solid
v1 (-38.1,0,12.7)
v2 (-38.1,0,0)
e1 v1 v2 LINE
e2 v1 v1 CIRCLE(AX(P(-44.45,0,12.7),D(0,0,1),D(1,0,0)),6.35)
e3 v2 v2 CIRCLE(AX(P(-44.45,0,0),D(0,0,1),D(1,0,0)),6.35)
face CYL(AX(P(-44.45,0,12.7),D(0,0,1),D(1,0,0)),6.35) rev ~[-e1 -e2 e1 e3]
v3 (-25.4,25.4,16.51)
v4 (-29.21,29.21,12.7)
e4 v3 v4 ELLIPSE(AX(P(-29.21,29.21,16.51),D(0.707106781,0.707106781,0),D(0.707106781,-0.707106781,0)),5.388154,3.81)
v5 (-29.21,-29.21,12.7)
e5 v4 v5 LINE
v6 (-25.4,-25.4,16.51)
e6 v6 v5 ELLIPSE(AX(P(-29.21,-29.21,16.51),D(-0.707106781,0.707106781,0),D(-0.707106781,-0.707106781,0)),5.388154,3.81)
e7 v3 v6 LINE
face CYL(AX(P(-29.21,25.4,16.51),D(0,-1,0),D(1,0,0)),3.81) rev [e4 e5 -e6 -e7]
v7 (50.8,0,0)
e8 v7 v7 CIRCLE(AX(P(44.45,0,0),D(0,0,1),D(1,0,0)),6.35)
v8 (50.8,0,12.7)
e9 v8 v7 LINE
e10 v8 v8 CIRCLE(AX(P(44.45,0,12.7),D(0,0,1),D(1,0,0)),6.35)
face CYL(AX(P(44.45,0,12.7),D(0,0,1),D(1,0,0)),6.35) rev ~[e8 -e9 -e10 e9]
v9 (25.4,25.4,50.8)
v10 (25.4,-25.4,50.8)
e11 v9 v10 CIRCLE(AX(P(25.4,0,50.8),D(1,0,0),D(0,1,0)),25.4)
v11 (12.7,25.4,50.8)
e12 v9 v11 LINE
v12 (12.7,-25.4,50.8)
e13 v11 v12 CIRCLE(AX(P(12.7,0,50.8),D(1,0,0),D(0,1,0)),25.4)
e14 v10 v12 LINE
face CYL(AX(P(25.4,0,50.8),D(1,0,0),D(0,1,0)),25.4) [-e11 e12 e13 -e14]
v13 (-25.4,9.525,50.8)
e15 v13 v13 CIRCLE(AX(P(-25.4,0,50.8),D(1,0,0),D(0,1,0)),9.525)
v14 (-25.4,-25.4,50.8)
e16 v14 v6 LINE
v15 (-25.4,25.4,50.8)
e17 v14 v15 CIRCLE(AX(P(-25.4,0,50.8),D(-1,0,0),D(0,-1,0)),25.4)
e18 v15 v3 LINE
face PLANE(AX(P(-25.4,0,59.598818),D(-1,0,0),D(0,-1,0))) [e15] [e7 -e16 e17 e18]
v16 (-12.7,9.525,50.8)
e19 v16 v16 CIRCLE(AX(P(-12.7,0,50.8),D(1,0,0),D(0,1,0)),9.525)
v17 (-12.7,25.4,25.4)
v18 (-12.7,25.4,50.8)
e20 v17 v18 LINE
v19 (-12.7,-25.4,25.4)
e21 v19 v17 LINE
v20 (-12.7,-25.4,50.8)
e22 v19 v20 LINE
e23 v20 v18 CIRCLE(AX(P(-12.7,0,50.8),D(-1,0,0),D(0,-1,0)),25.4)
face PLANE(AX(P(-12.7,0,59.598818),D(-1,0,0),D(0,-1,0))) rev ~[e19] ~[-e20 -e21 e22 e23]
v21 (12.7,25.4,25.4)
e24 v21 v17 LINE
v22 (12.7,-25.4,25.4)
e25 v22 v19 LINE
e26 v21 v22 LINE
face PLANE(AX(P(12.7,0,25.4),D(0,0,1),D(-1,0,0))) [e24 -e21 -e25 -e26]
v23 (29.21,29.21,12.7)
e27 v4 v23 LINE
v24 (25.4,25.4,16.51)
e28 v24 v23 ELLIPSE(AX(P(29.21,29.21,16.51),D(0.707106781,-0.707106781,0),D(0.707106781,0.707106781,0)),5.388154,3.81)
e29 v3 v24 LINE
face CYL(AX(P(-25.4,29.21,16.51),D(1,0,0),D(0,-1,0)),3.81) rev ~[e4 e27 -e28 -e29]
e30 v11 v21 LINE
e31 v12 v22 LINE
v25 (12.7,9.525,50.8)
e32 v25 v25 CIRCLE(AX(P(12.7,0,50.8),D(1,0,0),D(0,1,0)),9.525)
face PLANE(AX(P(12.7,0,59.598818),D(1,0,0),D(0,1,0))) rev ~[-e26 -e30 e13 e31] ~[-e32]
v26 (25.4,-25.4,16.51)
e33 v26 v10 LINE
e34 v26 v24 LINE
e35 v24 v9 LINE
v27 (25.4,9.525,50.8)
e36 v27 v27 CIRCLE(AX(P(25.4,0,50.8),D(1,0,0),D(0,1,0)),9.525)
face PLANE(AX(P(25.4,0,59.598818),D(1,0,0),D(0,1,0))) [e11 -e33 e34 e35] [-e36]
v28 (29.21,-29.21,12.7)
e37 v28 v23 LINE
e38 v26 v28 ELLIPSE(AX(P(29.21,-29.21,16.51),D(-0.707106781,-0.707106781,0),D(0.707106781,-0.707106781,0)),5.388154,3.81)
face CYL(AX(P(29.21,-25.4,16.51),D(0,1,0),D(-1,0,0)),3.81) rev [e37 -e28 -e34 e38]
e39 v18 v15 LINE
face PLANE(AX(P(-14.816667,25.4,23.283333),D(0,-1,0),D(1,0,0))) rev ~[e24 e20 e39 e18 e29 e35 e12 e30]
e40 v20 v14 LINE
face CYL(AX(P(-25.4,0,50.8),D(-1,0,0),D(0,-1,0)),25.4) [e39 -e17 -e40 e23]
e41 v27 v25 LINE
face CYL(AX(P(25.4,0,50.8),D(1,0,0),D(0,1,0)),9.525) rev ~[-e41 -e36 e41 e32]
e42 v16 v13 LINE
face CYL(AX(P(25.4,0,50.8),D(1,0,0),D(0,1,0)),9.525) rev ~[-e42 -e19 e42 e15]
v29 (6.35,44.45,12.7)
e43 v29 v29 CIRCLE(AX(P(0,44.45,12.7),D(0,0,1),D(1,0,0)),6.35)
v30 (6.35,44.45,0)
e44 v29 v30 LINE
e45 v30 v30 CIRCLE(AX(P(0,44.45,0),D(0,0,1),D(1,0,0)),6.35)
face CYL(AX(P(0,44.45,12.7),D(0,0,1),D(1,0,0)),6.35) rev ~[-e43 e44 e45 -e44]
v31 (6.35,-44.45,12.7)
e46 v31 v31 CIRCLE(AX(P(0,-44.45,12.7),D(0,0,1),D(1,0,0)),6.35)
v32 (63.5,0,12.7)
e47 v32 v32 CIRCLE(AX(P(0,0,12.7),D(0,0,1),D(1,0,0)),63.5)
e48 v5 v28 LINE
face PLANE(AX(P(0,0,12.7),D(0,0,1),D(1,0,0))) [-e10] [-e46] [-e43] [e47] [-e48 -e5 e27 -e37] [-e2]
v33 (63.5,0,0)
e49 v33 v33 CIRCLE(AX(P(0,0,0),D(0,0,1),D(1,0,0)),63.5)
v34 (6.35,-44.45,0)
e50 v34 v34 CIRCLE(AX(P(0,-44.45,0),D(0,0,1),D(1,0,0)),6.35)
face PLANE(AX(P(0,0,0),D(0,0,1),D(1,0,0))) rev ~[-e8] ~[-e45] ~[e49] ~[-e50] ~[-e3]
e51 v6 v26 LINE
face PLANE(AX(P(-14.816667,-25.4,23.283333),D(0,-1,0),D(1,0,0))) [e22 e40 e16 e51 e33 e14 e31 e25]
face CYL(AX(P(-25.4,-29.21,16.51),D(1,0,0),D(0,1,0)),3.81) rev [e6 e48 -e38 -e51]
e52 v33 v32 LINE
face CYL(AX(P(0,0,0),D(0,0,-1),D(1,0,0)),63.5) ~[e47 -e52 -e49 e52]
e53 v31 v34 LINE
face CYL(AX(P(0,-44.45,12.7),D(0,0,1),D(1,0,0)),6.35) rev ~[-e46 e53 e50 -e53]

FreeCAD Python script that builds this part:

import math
import FreeCAD as App
import Part
import Sketcher

V = App.Vector
Q = App.Units.Quantity


def edges_at(feature, points):
    """Names of the edges that pass closest to the given points."""
    edges = feature.Shape.Edges
    near = lambda p: min(range(len(edges)), key=lambda i: edges[i].distToShape(Part.Vertex(*p))[0])
    return sorted({f"Edge{near(p) + 1}" for p in points})


def add_polygon(sketch, points):
    """Adds a closed chain of lines whose ends are joined by coincident constraints."""
    first, n = sketch.GeometryCount, len(points)
    for a, b in zip(points, points[1:] + points[:1]):
        sketch.addGeometry(Part.LineSegment(App.Vector(*a, 0), App.Vector(*b, 0)), False)
    for i in range(n):
        sketch.addConstraint(Sketcher.Constraint("Coincident", first + i, 2, first + (i + 1) % n, 1))

doc = App.newDocument("Part")
params = doc.addObject("Spreadsheet::Sheet", "Params")
for row, (alias, value) in enumerate([
    ("sketch1_diameter", "5 in"),
    ("pad1_length", "0.5 in"),
    ("sketch2_width", "2 in"),
    ("sketch2_width2", "1 in"),
    ("pad2_length", "2 in"),
    ("sketch3_radius", "1 in"),
    ("pad3_length", "0.5 in"),
    ("sketch4_radius", "1 in"),
    ("pad4_length", "0.5 in"),
    ("sketch5_diameter", "0.75 in"),
    ("sketch6_diameter", "0.5 in"),
    ("fillet_radius", "0.15 in"),
], start=1):
    params.set(f"A{row}", alias)
    params.set(f"B{row}", "=" + value)
    params.setAlias(f"B{row}", alias)

body = doc.addObject("PartDesign::Body", "Body")

# Sketch on XY plane
sketch1 = body.newObject("Sketcher::SketchObject", "Sketch")
sketch1.AttachmentSupport = (doc.getObject("XY_Plane"), [""])
sketch1.MapMode = "FlatFace"
sketch1.addGeometry(Part.Circle(V(0, 0, 0), V(0, 0, 1), 63.5), False)
sketch1.addConstraint([
    Sketcher.Constraint("Coincident", 0, 3, -1, 1),
    Sketcher.Constraint("Diameter", 0, Q("5 in")),
])
sketch1.setExpression("Constraints[1]", "Params.sketch1_diameter")
pad1 = body.newObject("PartDesign::Pad", "Pad")
pad1.Profile = sketch1
pad1.setExpression("Length", "Params.pad1_length")

# Sketch on XZ plane
sketch2 = body.newObject("Sketcher::SketchObject", "Sketch001")
sketch2.AttachmentSupport = (doc.getObject("XZ_Plane"), [""])
sketch2.MapMode = "FlatFace"
add_polygon(sketch2, [(-25.4, 50.8), (-25.4, 0), (25.4, 0), (25.4, 50.8), (12.7, 50.8), (12.7, 25.4), (-12.7, 25.4), (-12.7, 50.8)])  # lines 0-7
sketch2.addConstraint([
    Sketcher.Constraint("Vertical", 0),
    Sketcher.Constraint("Horizontal", 1),
    Sketcher.Constraint("Vertical", 2),
    Sketcher.Constraint("Horizontal", 3),
    Sketcher.Constraint("Vertical", 4),
    Sketcher.Constraint("Horizontal", 5),
    Sketcher.Constraint("Vertical", 6),
    Sketcher.Constraint("Horizontal", 7),
    Sketcher.Constraint("Symmetric", 0, 2, 1, 2, -1, 1),
    Sketcher.Constraint("Symmetric", 3, 2, 6, 2, -2),
    Sketcher.Constraint("Equal", 1, 0),
    Sketcher.Constraint("Equal", 5, 4),
    Sketcher.Constraint("DistanceX", 1, 1, 1, 2, Q("2 in")),
    Sketcher.Constraint("DistanceX", 5, 2, 5, 1, Q("1 in")),
])
sketch2.setExpression("Constraints[20]", "Params.sketch2_width")
sketch2.setExpression("Constraints[21]", "Params.sketch2_width2")
pad2 = body.newObject("PartDesign::Pad", "Pad001")
pad2.Profile = sketch2
pad2.setExpression("Length", "Params.pad2_length")
pad2.Midplane = True

# Sketch on YZ plane
sketch3 = body.newObject("Sketcher::SketchObject", "Sketch002")
sketch3.AttachmentSupport = (doc.getObject("YZ_Plane"), [""])
sketch3.MapMode = "FlatFace"
sketch3.AttachmentOffset = App.Placement(V(0, 0, 1 * 25.4), App.Rotation())
sketch3.addGeometry([
    Part.LineSegment(V(-25.4, 50.8, 0), V(25.4, 50.8, 0)),
    Part.ArcOfCircle(Part.Circle(V(0, 50.8, 0), V(0, 0, 1), 25.4), math.radians(0), math.radians(180)),
], False)
sketch3.addConstraint([
    Sketcher.Constraint("Coincident", 0, 1, 1, 2),
    Sketcher.Constraint("Coincident", 1, 1, 0, 2),
    Sketcher.Constraint("Horizontal", 0),
    Sketcher.Constraint("PointOnObject", 1, 3, -2),
    Sketcher.Constraint("Horizontal", 1, 3, 0, 1),
    Sketcher.Constraint("Radius", 1, Q("1 in")),
    Sketcher.Constraint("DistanceY", -1, 1, 1, 3, Q("2 in")),
])
sketch3.setExpression("Constraints[5]", "Params.sketch3_radius")
pad3 = body.newObject("PartDesign::Pad", "Pad002")
pad3.Profile = sketch3
pad3.setExpression("Length", "Params.pad3_length")
pad3.Reversed = True

# Sketch on YZ plane
sketch4 = body.newObject("Sketcher::SketchObject", "Sketch003")
sketch4.AttachmentSupport = (doc.getObject("YZ_Plane"), [""])
sketch4.MapMode = "FlatFace"
sketch4.AttachmentOffset = App.Placement(V(0, 0, -1 * 25.4), App.Rotation())
sketch4.addGeometry([
    Part.LineSegment(V(25.4, 50.8, 0), V(-25.4, 50.8, 0)),
    Part.ArcOfCircle(Part.Circle(V(0, 50.8, 0), V(0, 0, 1), 25.4), math.radians(0), math.radians(180)),
], False)
sketch4.addConstraint([
    Sketcher.Constraint("Coincident", 0, 1, 1, 1),
    Sketcher.Constraint("Coincident", 1, 2, 0, 2),
    Sketcher.Constraint("Horizontal", 0),
    Sketcher.Constraint("PointOnObject", 1, 3, -2),
    Sketcher.Constraint("Horizontal", 1, 3, 0, 1),
    Sketcher.Constraint("Radius", 1, Q("1 in")),
    Sketcher.Constraint("DistanceY", -1, 1, 1, 3, Q("2 in")),
])
sketch4.setExpression("Constraints[5]", "Params.sketch4_radius")
pad4 = body.newObject("PartDesign::Pad", "Pad003")
pad4.Profile = sketch4
pad4.setExpression("Length", "Params.pad4_length")

# Sketch on YZ plane
sketch5 = body.newObject("Sketcher::SketchObject", "Sketch004")
sketch5.AttachmentSupport = (doc.getObject("YZ_Plane"), [""])
sketch5.MapMode = "FlatFace"
sketch5.AttachmentOffset = App.Placement(V(0, 0, 1 * 25.4), App.Rotation())
sketch5.addGeometry(Part.Circle(V(0, 50.8, 0), V(0, 0, 1), 9.525), False)
sketch5.addConstraint([
    Sketcher.Constraint("PointOnObject", 0, 3, -2),
    Sketcher.Constraint("Diameter", 0, Q("0.75 in")),
    Sketcher.Constraint("DistanceY", -1, 1, 0, 3, Q("2 in")),
])
sketch5.setExpression("Constraints[1]", "Params.sketch5_diameter")
pocket1 = body.newObject("PartDesign::Pocket", "Pocket")
pocket1.Profile = sketch5
pocket1.Type = "ThroughAll"

# Sketch on XY plane
sketch6 = body.newObject("Sketcher::SketchObject", "Sketch005")
sketch6.AttachmentSupport = (doc.getObject("XY_Plane"), [""])
sketch6.MapMode = "FlatFace"
sketch6.AttachmentOffset = App.Placement(V(0, 0, 0.5 * 25.4), App.Rotation())
sketch6.addGeometry([
    Part.Circle(V(0, 44.45, 0), V(0, 0, 1), 6.35),
    Part.Circle(V(44.45, 0, 0), V(0, 0, 1), 6.35),
    Part.Circle(V(0, -44.45, 0), V(0, 0, 1), 6.35),
    Part.Circle(V(-44.45, 0, 0), V(0, 0, 1), 6.35),
], False)
sketch6.addConstraint([
    Sketcher.Constraint("Equal", 0, 1),
    Sketcher.Constraint("Equal", 1, 2),
    Sketcher.Constraint("Equal", 2, 3),
    Sketcher.Constraint("Symmetric", 0, 3, 2, 3, -1, 1),
    Sketcher.Constraint("Symmetric", 1, 3, 3, 3, -1, 1),
    Sketcher.Constraint("PointOnObject", 0, 3, -2),
    Sketcher.Constraint("PointOnObject", 1, 3, -1),
    Sketcher.Constraint("Diameter", 0, Q("0.5 in")),
    Sketcher.Constraint("DistanceY", 2, 3, 0, 3, Q("3.5 in")),
    Sketcher.Constraint("DistanceX", 3, 3, 1, 3, Q("3.5 in")),
])
sketch6.setExpression("Constraints[7]", "Params.sketch6_diameter")
pocket2 = body.newObject("PartDesign::Pocket", "Pocket001")
pocket2.Profile = sketch6
pocket2.Type = "ThroughAll"
doc.recompute()

fillet = body.newObject("PartDesign::Fillet", "Fillet")
fillet.Base = (pocket2, edges_at(pocket2, [
    (-25.4, 0, 12.7),
    (0, -25.4, 12.7),
    (25.4, 0, 12.7),
    (0, 25.4, 12.7),
]))
fillet.setExpression("Radius", "Params.fillet_radius")

doc.recompute()
